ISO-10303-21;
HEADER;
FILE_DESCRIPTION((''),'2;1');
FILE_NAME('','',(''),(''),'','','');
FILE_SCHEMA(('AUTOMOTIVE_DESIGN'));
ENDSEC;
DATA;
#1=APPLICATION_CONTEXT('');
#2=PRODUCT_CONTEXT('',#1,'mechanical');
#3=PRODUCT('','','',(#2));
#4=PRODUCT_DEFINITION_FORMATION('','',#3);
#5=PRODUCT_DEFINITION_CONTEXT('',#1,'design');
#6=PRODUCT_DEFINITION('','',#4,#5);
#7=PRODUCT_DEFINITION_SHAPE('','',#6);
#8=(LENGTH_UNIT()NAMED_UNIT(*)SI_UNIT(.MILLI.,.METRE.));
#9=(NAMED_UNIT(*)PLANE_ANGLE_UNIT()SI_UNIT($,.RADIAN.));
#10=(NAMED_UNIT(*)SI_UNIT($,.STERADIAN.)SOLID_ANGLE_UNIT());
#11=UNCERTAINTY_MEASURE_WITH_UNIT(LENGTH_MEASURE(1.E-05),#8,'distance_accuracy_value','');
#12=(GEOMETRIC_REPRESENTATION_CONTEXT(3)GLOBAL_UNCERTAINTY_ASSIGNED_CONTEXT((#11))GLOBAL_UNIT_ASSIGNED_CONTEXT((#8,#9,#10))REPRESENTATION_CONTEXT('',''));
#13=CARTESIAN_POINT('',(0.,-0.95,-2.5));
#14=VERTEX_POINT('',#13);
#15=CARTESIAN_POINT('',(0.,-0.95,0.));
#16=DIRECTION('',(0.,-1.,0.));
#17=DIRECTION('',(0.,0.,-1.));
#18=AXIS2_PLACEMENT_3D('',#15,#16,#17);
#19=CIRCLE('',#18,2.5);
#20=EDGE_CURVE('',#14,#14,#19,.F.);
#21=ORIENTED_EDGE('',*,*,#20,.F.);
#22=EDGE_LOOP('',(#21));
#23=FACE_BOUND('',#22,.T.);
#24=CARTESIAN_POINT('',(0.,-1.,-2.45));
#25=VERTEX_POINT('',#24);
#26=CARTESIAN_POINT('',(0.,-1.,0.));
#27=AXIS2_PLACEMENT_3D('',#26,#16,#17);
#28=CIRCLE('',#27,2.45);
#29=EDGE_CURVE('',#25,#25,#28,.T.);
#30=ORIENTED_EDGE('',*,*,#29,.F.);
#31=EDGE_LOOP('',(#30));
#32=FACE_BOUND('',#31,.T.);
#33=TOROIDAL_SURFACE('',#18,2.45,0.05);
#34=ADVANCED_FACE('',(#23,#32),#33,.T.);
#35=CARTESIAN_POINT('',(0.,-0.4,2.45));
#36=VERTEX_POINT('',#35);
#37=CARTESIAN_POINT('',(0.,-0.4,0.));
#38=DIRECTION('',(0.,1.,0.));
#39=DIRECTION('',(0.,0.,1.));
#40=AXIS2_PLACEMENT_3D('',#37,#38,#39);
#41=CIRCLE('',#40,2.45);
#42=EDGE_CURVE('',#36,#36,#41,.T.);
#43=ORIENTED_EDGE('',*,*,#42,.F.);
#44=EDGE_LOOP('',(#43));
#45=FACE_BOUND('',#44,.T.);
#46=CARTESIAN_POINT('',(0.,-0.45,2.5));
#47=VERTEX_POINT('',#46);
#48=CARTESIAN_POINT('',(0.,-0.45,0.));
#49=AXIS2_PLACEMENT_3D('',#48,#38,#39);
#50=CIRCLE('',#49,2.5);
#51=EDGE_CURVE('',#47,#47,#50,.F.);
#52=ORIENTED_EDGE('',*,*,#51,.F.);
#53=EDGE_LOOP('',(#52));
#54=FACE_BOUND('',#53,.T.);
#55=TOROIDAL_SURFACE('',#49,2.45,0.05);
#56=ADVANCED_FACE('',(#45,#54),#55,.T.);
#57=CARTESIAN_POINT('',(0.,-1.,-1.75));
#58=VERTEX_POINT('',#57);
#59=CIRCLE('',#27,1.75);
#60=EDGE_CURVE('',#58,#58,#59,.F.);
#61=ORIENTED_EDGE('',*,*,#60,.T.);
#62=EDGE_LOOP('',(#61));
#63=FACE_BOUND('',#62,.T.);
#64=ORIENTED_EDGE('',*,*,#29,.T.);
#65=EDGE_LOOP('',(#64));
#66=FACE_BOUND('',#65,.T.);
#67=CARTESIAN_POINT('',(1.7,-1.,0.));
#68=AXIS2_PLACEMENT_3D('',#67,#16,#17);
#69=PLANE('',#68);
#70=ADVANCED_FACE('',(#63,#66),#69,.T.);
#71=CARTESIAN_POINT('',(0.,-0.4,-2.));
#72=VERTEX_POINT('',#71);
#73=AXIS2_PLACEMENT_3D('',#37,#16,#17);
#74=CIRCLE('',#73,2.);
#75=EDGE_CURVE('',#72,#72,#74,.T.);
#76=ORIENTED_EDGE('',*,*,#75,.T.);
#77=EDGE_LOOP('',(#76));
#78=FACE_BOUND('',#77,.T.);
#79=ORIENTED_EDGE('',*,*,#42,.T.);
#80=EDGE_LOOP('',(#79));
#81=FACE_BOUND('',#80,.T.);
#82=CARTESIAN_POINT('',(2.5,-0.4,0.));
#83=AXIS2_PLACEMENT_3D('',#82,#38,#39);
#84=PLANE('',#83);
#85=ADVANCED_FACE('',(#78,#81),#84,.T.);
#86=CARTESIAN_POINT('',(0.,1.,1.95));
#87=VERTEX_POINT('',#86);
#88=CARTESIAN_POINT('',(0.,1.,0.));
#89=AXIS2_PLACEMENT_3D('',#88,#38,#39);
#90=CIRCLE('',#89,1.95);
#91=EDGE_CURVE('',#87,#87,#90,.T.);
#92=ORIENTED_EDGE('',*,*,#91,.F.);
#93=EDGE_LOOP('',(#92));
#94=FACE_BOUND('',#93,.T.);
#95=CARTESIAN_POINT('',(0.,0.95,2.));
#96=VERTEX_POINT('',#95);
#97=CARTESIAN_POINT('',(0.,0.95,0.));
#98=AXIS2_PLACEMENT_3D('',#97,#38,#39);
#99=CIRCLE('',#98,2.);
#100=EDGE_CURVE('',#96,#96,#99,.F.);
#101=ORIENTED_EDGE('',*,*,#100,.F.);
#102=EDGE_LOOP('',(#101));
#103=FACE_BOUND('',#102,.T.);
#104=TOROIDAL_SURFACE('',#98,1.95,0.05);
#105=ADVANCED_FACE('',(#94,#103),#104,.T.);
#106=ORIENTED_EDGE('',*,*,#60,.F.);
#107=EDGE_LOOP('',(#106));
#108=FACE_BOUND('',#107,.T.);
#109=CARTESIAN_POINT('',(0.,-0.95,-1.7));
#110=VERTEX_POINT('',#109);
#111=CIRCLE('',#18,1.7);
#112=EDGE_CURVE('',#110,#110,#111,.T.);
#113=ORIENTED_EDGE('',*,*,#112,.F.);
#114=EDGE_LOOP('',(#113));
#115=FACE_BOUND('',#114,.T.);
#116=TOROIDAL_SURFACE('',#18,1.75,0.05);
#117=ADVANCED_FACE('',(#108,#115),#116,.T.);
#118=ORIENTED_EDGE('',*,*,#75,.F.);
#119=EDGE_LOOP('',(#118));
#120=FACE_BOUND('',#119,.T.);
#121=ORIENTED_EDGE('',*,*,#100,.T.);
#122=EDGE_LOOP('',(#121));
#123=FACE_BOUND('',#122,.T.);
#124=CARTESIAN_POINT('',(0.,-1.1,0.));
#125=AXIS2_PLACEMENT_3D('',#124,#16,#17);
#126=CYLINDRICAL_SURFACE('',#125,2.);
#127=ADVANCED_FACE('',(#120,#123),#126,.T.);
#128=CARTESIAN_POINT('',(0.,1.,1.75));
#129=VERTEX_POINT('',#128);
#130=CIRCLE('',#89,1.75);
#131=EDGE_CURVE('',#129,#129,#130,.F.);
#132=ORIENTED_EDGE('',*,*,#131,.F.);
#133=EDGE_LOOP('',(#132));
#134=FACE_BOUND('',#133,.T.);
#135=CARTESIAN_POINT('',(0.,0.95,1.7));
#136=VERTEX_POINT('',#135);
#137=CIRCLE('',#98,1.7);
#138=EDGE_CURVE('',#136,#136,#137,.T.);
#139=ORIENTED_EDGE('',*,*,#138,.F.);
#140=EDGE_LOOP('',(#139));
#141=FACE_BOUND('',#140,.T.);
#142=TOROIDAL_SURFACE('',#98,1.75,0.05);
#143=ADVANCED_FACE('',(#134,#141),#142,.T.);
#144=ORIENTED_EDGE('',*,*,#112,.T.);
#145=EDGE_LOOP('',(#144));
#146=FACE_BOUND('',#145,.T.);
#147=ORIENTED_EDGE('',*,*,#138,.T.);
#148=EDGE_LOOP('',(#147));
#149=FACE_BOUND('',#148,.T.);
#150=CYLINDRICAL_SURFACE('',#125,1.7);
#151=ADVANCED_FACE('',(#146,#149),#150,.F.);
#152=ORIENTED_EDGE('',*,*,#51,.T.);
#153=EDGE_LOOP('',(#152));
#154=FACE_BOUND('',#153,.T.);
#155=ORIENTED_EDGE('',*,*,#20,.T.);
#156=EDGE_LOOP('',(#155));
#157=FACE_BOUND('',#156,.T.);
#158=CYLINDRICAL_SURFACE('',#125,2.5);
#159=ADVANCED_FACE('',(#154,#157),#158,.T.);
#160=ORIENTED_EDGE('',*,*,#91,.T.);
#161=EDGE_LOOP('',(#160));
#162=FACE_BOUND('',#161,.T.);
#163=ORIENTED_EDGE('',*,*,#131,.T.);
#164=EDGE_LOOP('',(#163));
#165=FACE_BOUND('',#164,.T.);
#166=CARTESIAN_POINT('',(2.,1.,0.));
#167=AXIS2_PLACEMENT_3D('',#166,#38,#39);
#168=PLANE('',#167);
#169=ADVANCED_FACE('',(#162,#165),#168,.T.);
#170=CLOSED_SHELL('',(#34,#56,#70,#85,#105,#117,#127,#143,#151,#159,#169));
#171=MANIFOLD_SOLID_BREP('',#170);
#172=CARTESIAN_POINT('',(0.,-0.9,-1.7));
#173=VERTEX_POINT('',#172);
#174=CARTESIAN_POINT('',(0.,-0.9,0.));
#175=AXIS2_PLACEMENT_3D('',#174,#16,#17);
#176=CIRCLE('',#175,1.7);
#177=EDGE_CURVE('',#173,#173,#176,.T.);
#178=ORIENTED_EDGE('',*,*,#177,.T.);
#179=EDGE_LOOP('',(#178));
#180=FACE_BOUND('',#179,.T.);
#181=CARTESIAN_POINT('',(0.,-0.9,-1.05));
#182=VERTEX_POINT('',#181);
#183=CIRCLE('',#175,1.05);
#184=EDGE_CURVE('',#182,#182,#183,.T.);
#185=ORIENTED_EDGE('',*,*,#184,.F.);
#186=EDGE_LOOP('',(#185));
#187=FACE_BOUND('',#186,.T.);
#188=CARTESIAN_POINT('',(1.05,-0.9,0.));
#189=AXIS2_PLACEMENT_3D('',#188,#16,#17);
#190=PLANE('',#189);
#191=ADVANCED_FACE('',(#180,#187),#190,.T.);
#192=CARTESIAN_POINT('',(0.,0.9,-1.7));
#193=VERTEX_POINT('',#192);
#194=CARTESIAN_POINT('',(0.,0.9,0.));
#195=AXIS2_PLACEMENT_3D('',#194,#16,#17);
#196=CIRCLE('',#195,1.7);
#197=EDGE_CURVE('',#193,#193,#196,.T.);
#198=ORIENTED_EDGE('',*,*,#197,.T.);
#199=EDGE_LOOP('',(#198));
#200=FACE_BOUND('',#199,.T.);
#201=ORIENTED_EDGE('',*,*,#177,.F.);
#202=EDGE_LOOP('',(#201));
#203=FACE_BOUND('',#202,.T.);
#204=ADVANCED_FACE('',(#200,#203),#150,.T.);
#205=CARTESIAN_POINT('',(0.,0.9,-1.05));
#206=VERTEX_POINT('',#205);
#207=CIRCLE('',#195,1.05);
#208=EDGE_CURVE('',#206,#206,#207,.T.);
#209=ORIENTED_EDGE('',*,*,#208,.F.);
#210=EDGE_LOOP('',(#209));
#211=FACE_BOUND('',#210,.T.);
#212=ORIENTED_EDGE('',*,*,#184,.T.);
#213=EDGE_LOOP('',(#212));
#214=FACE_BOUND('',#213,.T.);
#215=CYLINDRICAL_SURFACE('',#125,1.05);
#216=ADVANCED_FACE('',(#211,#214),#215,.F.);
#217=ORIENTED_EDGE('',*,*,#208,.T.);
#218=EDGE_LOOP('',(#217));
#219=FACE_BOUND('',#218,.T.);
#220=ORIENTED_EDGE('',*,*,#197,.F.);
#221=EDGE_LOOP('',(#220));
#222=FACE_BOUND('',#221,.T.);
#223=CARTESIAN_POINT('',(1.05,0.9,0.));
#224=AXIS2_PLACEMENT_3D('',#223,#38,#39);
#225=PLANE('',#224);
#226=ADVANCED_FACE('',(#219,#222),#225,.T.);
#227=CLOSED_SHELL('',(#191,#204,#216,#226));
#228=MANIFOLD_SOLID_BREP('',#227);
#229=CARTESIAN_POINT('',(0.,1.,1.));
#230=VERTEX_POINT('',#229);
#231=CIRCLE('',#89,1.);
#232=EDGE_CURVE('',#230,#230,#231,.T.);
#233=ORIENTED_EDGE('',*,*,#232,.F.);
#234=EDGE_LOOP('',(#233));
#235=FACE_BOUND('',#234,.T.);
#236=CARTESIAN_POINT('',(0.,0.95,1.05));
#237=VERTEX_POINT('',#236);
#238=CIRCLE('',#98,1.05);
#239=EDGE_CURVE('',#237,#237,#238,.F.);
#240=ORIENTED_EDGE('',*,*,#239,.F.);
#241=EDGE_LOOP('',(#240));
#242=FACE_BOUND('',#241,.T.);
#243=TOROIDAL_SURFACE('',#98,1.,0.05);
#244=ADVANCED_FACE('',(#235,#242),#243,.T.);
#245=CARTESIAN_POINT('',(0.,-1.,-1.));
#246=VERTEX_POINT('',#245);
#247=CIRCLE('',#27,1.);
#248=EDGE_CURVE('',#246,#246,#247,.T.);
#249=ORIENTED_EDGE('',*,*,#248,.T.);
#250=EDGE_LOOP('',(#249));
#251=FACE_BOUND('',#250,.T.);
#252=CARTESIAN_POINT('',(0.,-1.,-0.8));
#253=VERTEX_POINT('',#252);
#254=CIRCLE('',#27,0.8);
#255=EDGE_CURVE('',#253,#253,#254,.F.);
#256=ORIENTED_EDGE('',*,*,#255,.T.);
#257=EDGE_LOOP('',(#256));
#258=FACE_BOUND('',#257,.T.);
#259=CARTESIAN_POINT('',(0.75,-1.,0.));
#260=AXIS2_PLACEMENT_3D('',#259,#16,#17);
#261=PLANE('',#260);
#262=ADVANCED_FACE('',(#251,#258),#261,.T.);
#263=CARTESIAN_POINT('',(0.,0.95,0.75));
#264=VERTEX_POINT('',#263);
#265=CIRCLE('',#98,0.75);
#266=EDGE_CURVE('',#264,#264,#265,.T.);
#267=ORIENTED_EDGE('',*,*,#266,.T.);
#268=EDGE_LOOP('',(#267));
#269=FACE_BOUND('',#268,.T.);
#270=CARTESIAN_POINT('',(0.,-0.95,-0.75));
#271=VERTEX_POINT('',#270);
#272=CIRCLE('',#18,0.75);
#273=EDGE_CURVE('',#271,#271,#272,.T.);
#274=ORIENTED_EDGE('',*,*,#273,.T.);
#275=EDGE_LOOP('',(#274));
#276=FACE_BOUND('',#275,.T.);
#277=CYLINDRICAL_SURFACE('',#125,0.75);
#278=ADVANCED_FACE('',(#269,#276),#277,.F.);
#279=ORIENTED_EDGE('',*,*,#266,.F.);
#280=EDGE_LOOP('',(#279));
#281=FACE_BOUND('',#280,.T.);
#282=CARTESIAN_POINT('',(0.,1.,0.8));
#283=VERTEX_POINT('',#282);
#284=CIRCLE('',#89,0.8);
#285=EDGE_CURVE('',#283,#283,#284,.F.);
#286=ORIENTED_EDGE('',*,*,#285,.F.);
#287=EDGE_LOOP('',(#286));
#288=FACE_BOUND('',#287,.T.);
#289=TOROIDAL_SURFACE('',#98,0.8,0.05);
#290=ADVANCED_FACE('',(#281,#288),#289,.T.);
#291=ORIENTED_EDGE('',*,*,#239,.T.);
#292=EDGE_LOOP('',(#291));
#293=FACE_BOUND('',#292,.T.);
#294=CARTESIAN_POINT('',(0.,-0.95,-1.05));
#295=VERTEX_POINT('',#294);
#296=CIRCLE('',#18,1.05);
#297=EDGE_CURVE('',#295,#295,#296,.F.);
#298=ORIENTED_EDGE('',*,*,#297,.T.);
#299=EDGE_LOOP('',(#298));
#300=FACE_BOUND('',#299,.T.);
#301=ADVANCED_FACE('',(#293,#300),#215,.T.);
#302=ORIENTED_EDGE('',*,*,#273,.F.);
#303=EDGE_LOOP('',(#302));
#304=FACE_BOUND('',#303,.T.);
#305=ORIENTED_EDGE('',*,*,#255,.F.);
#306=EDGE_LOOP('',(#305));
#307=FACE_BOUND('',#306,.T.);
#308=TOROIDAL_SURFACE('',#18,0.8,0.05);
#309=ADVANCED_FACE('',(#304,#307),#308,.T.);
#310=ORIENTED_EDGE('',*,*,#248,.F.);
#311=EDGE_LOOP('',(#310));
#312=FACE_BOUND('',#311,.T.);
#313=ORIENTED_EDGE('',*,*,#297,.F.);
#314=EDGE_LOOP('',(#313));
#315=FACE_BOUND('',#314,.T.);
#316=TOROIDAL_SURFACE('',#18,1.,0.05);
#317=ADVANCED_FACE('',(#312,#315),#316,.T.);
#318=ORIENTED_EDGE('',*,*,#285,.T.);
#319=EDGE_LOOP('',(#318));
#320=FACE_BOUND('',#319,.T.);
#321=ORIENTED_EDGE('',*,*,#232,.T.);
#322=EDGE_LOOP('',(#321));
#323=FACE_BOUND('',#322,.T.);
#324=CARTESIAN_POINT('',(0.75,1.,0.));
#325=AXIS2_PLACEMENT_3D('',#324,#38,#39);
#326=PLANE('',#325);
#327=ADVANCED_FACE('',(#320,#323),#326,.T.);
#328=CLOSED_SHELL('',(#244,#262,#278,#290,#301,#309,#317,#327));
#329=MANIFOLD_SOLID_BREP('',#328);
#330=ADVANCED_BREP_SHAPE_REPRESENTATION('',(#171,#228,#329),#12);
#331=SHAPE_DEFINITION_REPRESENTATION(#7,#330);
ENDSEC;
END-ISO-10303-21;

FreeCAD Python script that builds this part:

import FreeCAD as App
import Part
import Sketcher
from FreeCAD import Vector


def edges_at(feature, points):
    """Names of the edges that pass closest to the given points."""
    edges = feature.Shape.Edges
    near = lambda p: min(range(len(edges)), key=lambda i: edges[i].distToShape(Part.Vertex(*p))[0])
    return sorted({f"Edge{near(p) + 1}" for p in points})

doc = App.newDocument("Part")
body = doc.addObject("PartDesign::Body", "Body")

# Sketch on XY plane
sketch1 = body.newObject("Sketcher::SketchObject", "Sketch")
sketch1.AttachmentSupport = (doc.getObject("XY_Plane"), [""])
sketch1.MapMode = "FlatFace"
sketch1.addGeometry([
    Part.LineSegment(Vector(0.75, 1, 0), Vector(0.75, -1, 0)),
    Part.LineSegment(Vector(0.75, -1, 0), Vector(1.05, -1, 0)),
    Part.LineSegment(Vector(1.05, -1, 0), Vector(1.05, 1, 0)),
    Part.LineSegment(Vector(1.05, 1, 0), Vector(0.75, 1, 0)),
], False)
sketch1.addConstraint([
    Sketcher.Constraint("Coincident", 0, 2, 1, 1),
    Sketcher.Constraint("Coincident", 1, 2, 2, 1),
    Sketcher.Constraint("Coincident", 2, 2, 3, 1),
    Sketcher.Constraint("Coincident", 3, 2, 0, 1),
    Sketcher.Constraint("Vertical", 0),
    Sketcher.Constraint("Horizontal", 1),
    Sketcher.Constraint("Vertical", 2),
    Sketcher.Constraint("Horizontal", 3),
    Sketcher.Constraint("DistanceY", 0, 2, 0, 1, 2.0),
    Sketcher.Constraint("DistanceX", 1, 1, 1, 2, 0.3),
    Sketcher.Constraint("DistanceY", 0, 2, -1, 1, 1.0),
    Sketcher.Constraint("DistanceX", -1, 1, 0, 2, 0.75),
])
revolution = body.newObject("PartDesign::Revolution", "Revolution")
revolution.Profile = sketch1
revolution.ReferenceAxis = (sketch1, ["V_Axis"])
revolution.Angle = 360
doc.recompute()

fillet = body.newObject("PartDesign::Fillet", "Fillet")
fillet.Base = (revolution, edges_at(revolution, [
    (0, 1, 0.75),
    (0, 1, 1.05),
    (0, -1, 1.05),
    (0, -1, 0.75),
]))
fillet.Radius = 0.05
body2 = doc.addObject("PartDesign::Body", "Body001")

# Sketch on XY plane
sketch2 = body2.newObject("Sketcher::SketchObject", "Sketch001")
sketch2.AttachmentSupport = (doc.getObject("XY_Plane001"), [""])
sketch2.MapMode = "FlatFace"
sketch2.addGeometry([
    Part.LineSegment(Vector(1.7, 1, 0), Vector(1.7, -1, 0)),  # 0
    Part.LineSegment(Vector(1.7, -1, 0), Vector(2.5, -1, 0)),  # 1
    Part.LineSegment(Vector(2.5, -1, 0), Vector(2.5, -0.4, 0)),  # 2
    Part.LineSegment(Vector(2.5, -0.4, 0), Vector(2, -0.4, 0)),  # 3
    Part.LineSegment(Vector(2, -0.4, 0), Vector(2, 1, 0)),  # 4
    Part.LineSegment(Vector(2, 1, 0), Vector(1.7, 1, 0)),  # 5
], False)
sketch2.addConstraint([
    Sketcher.Constraint("Coincident", 0, 2, 1, 1),
    Sketcher.Constraint("Coincident", 1, 2, 2, 1),
    Sketcher.Constraint("Coincident", 2, 2, 3, 1),
    Sketcher.Constraint("Coincident", 3, 2, 4, 1),
    Sketcher.Constraint("Coincident", 4, 2, 5, 1),
    Sketcher.Constraint("Coincident", 5, 2, 0, 1),
    Sketcher.Constraint("Vertical", 0),
    Sketcher.Constraint("Horizontal", 1),
    Sketcher.Constraint("Vertical", 2),
    Sketcher.Constraint("Horizontal", 3),
    Sketcher.Constraint("Vertical", 4),
    Sketcher.Constraint("Horizontal", 5),
    Sketcher.Constraint("DistanceY", 0, 2, 0, 1, 2.0),
    Sketcher.Constraint("DistanceX", 1, 1, 1, 2, 0.8),
    Sketcher.Constraint("DistanceX", 3, 2, 3, 1, 0.5),
    Sketcher.Constraint("DistanceY", 2, 1, 2, 2, 0.6),
    Sketcher.Constraint("DistanceY", 0, 2, -1, 1, 1.0),
    Sketcher.Constraint("DistanceX", -1, 1, 3, 2, 2.0),
])
revolution2 = body2.newObject("PartDesign::Revolution", "Revolution001")
revolution2.Profile = sketch2
revolution2.ReferenceAxis = (sketch2, ["V_Axis"])
revolution2.Angle = 360
doc.recompute()

fillet2 = body2.newObject("PartDesign::Fillet", "Fillet001")
fillet2.Base = (revolution2, edges_at(revolution2, [
    (0, -1, 2.5),
    (0, -1, 1.7),
    (0, 1, 1.7),
    (0, 1, 2),
    (0, -0.4, 2.5),
]))
fillet2.Radius = 0.05
body3 = doc.addObject("PartDesign::Body", "Body002")

# Sketch on XY plane
sketch3 = body3.newObject("Sketcher::SketchObject", "Sketch002")
sketch3.AttachmentSupport = (doc.getObject("XY_Plane002"), [""])
sketch3.MapMode = "FlatFace"
sketch3.addGeometry([
    Part.LineSegment(Vector(1.1, 0.9, 0), Vector(1.1, -0.9, 0)),
    Part.LineSegment(Vector(1.1, -0.9, 0), Vector(1.7, -0.9, 0)),
    Part.LineSegment(Vector(1.7, -0.9, 0), Vector(1.7, 0.9, 0)),
    Part.LineSegment(Vector(1.7, 0.9, 0), Vector(1.1, 0.9, 0)),
], False)
sketch3.addConstraint([
    Sketcher.Constraint("Coincident", 0, 2, 1, 1),
    Sketcher.Constraint("Coincident", 1, 2, 2, 1),
    Sketcher.Constraint("Coincident", 2, 2, 3, 1),
    Sketcher.Constraint("Coincident", 3, 2, 0, 1),
    Sketcher.Constraint("Vertical", 0),
    Sketcher.Constraint("Horizontal", 1),
    Sketcher.Constraint("Vertical", 2),
    Sketcher.Constraint("Horizontal", 3),
    Sketcher.Constraint("DistanceY", 0, 2, 0, 1, 1.8),
    Sketcher.Constraint("DistanceX", 1, 1, 1, 2, 0.65),
    Sketcher.Constraint("DistanceY", 0, 2, -1, 1, 0.9),
    Sketcher.Constraint("DistanceX", -1, 1, 1, 2, 1.7),
])
revolution3 = body3.newObject("PartDesign::Revolution", "Revolution002")
revolution3.Profile = sketch3
revolution3.ReferenceAxis = (sketch3, ["V_Axis"])
revolution3.Angle = 360

doc.recompute()
